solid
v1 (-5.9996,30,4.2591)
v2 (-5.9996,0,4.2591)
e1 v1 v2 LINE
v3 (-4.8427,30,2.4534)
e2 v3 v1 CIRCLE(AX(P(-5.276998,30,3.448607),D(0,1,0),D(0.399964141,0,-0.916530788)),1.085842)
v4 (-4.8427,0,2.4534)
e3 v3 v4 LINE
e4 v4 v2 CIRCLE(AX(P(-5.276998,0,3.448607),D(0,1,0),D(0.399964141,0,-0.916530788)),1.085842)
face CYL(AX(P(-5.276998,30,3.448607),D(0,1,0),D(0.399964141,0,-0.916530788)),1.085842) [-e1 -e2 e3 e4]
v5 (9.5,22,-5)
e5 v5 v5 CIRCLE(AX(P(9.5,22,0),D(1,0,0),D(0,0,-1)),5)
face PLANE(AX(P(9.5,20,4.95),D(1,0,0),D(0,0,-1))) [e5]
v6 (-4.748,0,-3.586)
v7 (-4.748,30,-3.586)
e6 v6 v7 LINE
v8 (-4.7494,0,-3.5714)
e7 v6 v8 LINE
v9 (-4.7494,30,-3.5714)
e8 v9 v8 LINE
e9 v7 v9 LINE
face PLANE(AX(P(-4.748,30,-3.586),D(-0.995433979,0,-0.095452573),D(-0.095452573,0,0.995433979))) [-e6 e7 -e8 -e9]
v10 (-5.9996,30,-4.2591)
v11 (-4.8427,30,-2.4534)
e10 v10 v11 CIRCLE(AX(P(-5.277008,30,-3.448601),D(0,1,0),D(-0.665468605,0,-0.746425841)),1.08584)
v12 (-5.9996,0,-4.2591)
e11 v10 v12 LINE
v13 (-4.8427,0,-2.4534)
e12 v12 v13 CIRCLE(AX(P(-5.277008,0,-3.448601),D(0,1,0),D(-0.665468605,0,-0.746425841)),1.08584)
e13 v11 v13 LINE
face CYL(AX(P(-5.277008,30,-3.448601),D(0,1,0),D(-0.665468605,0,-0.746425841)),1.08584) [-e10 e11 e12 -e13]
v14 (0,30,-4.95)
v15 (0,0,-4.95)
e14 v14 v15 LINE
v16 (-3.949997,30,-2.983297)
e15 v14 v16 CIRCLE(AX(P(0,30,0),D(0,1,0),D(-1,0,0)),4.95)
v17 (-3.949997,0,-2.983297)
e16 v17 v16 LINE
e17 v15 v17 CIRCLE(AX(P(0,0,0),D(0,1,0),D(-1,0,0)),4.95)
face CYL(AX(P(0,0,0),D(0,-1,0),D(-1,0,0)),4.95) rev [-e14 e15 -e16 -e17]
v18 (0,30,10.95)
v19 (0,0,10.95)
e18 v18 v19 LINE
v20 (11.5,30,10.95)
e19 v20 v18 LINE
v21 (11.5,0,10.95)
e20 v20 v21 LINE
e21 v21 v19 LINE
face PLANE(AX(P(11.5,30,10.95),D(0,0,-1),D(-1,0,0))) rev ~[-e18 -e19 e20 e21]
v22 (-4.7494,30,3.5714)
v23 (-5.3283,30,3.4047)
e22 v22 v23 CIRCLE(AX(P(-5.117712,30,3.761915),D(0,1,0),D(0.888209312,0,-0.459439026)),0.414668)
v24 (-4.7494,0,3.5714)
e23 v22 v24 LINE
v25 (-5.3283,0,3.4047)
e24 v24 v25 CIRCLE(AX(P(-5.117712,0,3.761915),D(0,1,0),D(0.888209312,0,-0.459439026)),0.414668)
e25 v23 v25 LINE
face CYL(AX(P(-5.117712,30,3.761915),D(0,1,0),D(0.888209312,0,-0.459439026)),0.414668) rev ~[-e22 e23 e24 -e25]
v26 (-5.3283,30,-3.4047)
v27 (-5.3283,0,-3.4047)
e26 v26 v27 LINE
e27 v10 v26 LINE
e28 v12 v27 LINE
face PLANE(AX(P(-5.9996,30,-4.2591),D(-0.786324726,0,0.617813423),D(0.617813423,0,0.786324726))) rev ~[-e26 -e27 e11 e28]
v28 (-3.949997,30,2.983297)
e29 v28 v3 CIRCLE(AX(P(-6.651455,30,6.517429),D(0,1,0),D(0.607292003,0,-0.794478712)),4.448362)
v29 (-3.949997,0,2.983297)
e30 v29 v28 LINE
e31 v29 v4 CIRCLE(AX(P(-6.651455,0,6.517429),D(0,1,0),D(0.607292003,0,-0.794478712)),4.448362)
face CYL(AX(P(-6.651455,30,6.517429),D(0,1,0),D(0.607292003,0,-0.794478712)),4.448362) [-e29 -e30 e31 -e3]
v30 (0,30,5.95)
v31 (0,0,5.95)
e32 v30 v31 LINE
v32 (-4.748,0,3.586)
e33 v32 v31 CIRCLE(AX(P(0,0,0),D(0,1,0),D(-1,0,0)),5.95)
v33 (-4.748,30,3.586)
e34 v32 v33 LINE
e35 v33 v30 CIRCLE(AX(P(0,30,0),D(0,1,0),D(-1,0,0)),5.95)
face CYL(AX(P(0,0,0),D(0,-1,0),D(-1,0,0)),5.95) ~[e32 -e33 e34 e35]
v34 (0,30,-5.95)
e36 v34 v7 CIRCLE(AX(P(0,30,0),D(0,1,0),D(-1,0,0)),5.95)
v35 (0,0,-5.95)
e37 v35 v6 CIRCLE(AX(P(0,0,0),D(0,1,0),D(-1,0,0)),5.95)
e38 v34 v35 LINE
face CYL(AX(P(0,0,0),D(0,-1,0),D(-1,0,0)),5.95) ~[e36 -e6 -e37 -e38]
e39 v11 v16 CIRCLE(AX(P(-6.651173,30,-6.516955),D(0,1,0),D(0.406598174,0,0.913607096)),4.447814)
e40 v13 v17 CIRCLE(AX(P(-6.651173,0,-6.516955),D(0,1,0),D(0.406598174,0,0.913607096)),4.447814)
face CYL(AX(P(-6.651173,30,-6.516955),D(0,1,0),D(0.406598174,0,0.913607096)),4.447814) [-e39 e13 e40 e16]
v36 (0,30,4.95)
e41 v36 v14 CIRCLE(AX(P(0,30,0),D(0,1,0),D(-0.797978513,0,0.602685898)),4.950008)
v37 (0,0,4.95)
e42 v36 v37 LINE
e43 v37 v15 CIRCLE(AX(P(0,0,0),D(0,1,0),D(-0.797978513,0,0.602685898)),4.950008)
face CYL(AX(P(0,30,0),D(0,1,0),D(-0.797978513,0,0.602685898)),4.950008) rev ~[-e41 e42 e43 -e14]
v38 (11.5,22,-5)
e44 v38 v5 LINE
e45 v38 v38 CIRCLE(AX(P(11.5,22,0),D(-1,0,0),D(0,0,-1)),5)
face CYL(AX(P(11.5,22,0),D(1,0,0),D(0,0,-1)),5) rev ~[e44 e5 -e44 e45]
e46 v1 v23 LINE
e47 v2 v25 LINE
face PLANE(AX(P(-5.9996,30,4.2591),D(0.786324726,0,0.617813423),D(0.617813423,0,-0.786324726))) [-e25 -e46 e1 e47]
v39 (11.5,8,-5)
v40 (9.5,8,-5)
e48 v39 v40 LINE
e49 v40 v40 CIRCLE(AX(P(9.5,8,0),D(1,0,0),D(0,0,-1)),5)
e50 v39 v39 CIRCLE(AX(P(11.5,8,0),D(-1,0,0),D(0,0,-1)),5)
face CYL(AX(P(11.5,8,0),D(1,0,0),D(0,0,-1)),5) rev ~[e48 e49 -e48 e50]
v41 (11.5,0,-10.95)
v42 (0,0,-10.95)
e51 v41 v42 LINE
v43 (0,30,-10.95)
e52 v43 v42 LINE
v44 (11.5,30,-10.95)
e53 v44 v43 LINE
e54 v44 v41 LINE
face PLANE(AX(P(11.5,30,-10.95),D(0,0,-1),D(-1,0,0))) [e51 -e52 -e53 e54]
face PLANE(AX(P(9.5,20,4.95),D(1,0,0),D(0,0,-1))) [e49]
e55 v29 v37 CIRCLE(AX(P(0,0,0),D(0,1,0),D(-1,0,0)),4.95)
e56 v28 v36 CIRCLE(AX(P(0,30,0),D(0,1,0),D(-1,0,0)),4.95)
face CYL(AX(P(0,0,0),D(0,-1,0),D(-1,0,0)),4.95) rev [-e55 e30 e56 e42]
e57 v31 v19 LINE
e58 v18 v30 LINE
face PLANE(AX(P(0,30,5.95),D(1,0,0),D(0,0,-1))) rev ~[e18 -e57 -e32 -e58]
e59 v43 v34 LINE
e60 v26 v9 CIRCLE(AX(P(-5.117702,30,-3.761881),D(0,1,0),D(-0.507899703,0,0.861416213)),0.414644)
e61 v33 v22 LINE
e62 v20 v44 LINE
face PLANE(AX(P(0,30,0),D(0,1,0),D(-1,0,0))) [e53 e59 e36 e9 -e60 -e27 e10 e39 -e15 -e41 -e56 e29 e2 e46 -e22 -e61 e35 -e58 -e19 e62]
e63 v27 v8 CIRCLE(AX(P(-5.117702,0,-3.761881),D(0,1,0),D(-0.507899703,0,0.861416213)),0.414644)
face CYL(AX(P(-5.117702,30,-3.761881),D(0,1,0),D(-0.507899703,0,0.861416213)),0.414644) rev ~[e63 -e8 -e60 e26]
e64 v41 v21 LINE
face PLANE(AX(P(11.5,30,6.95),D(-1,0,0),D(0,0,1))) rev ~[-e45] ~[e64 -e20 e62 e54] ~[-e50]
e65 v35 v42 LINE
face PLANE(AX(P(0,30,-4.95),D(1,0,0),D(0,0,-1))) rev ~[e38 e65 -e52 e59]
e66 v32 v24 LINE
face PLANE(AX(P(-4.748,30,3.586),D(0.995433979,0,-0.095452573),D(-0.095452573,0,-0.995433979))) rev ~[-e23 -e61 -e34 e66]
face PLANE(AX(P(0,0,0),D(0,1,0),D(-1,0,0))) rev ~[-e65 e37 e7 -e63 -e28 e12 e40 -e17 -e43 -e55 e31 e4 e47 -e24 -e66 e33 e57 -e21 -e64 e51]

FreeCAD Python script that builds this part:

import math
import FreeCAD as App
import Part
import Sketcher

V = App.Vector
Q = App.Units.Quantity

doc = App.newDocument("Part")
params = doc.addObject("Spreadsheet::Sheet", "Params")
for row, (alias, value) in enumerate([
    ("sketch1_radius", "4.95 mm"),
    ("sketch1_radius2", "5.95 mm"),
    ("pad1_length", "30 mm"),
    ("sketch2_height", "6 mm"),
    ("sketch2_height2", "21.9 mm"),
    ("sketch2_width", "11.5 mm"),
    ("pad2_length", "30 mm"),
    ("sketch3_diameter", "10 mm"),
    ("pocket1_length", "2 mm"),
    ("sketch4_length", "1 mm"),
    ("pad3_length", "30 mm"),
], start=1):
    params.set(f"A{row}", alias)
    params.set(f"B{row}", "=" + value)
    params.setAlias(f"B{row}", alias)

body = doc.addObject("PartDesign::Body", "Body")

# Sketch on XZ plane
sketch1 = body.newObject("Sketcher::SketchObject", "Sketch")
sketch1.AttachmentSupport = (doc.getObject("XZ_Plane"), [""])
sketch1.MapMode = "FlatFace"
sketch1.addGeometry(Part.ArcOfCircle(Part.Circle(V(0, 0, 0), V(0, 0, 1), 4.95), math.radians(-142.937512), math.radians(142.937512)), False)
sketch1.addGeometry(Part.LineSegment(V(-3.949994, 2.983294, 0), V(-4.748, 3.586, 0)), False)
sketch1.addGeometry(Part.ArcOfCircle(Part.Circle(V(0, 0, 0), V(0, 0, 1), 5.95), math.radians(-142.937512), math.radians(142.937512)), False)
sketch1.addGeometry(Part.LineSegment(V(-4.748, -3.586, 0), V(-3.949994, -2.983294, 0)), False)
sketch1.addConstraint(Sketcher.Constraint("Coincident", 0, 2, 1, 1))
sketch1.addConstraint(Sketcher.Constraint("Coincident", 1, 2, 2, 2))
sketch1.addConstraint(Sketcher.Constraint("Coincident", 2, 1, 3, 1))
sketch1.addConstraint(Sketcher.Constraint("Coincident", 3, 2, 0, 1))
sketch1.addConstraint(Sketcher.Constraint("Coincident", 0, 3, -1, 1))
sketch1.addConstraint(Sketcher.Constraint("Coincident", 2, 3, -1, 1))
sketch1.addConstraint(Sketcher.Constraint("Vertical", 1, 2, 2, 1))
sketch1.addConstraint(Sketcher.Constraint("Vertical", 0, 2, 3, 2))
sketch1.addConstraint(Sketcher.Constraint("Radius", 0, Q("4.95 mm")))
sketch1.addConstraint(Sketcher.Constraint("Radius", 2, Q("5.95 mm")))
sketch1.addConstraint(Sketcher.Constraint("DistanceX", 0, 2, -1, 1, Q("3.95 mm")))
sketch1.addConstraint(Sketcher.Constraint("DistanceX", 1, 2, -1, 1, Q("4.748 mm")))
sketch1.setExpression("Constraints[8]", "Params.sketch1_radius")
sketch1.setExpression("Constraints[9]", "Params.sketch1_radius2")
pad1 = body.newObject("PartDesign::Pad", "Pad")
pad1.Profile = sketch1
pad1.setExpression("Length", "Params.pad1_length")
pad1.Reversed = True

# Sketch on XZ plane
sketch2 = body.newObject("Sketcher::SketchObject", "Sketch001")
sketch2.AttachmentSupport = (doc.getObject("XZ_Plane"), [""])
sketch2.MapMode = "FlatFace"
sketch2.AttachmentOffset = App.Placement(V(0, 0, -30), App.Rotation())
sketch2.addGeometry(Part.LineSegment(V(0, 4.95, 0), V(0, 10.95, 0)), False)
sketch2.addGeometry(Part.LineSegment(V(0, 10.95, 0), V(11.5, 10.95, 0)), False)
sketch2.addGeometry(Part.LineSegment(V(11.5, 10.95, 0), V(11.5, -10.95, 0)), False)
sketch2.addGeometry(Part.LineSegment(V(11.5, -10.95, 0), V(0, -10.95, 0)), False)
sketch2.addGeometry(Part.LineSegment(V(0, -10.95, 0), V(0, -4.95, 0)), False)
sketch2.addGeometry(Part.ArcOfCircle(Part.Circle(V(0, 0, 0), V(0, 0, 1), 4.950008), math.radians(-90), math.radians(90)), False)
sketch2.addConstraint(Sketcher.Constraint("Coincident", 0, 2, 1, 1))
sketch2.addConstraint(Sketcher.Constraint("Coincident", 1, 2, 2, 1))
sketch2.addConstraint(Sketcher.Constraint("Coincident", 2, 2, 3, 1))
sketch2.addConstraint(Sketcher.Constraint("Coincident", 3, 2, 4, 1))
sketch2.addConstraint(Sketcher.Constraint("Coincident", 4, 2, 5, 1))
sketch2.addConstraint(Sketcher.Constraint("Coincident", 5, 2, 0, 1))
sketch2.addConstraint(Sketcher.Constraint("Vertical", 0))
sketch2.addConstraint(Sketcher.Constraint("Horizontal", 1))
sketch2.addConstraint(Sketcher.Constraint("Vertical", 2))
sketch2.addConstraint(Sketcher.Constraint("Horizontal", 3))
sketch2.addConstraint(Sketcher.Constraint("Vertical", 4))
sketch2.addConstraint(Sketcher.Constraint("Coincident", 5, 3, -1, 1))
sketch2.addConstraint(Sketcher.Constraint("Symmetric", 0, 2, 3, 2, -1, 1))
sketch2.addConstraint(Sketcher.Constraint("PointOnObject", 0, 2, -2))
sketch2.addConstraint(Sketcher.Constraint("DistanceY", 0, 1, 0, 2, Q("6 mm")))
sketch2.addConstraint(Sketcher.Constraint("DistanceY", 2, 2, 2, 1, Q("21.9 mm")))
sketch2.addConstraint(Sketcher.Constraint("DistanceX", 1, 1, 1, 2, Q("11.5 mm")))
sketch2.setExpression("Constraints[14]", "Params.sketch2_height")
sketch2.setExpression("Constraints[15]", "Params.sketch2_height2")
sketch2.setExpression("Constraints[16]", "Params.sketch2_width")
pad2 = body.newObject("PartDesign::Pad", "Pad001")
pad2.Profile = sketch2
pad2.setExpression("Length", "Params.pad2_length")

# Sketch on YZ plane
sketch3 = body.newObject("Sketcher::SketchObject", "Sketch002")
sketch3.AttachmentSupport = (doc.getObject("YZ_Plane"), [""])
sketch3.MapMode = "FlatFace"
sketch3.AttachmentOffset = App.Placement(V(0, 0, 11.5), App.Rotation())
sketch3.addGeometry(Part.Circle(V(8, 0, 0), V(0, 0, 1), 5), False)
sketch3.addGeometry(Part.Circle(V(22, 0, 0), V(0, 0, 1), 5), False)
sketch3.addConstraint(Sketcher.Constraint("Equal", 0, 1))
sketch3.addConstraint(Sketcher.Constraint("PointOnObject", 0, 3, -1))
sketch3.addConstraint(Sketcher.Constraint("PointOnObject", 1, 3, -1))
sketch3.addConstraint(Sketcher.Constraint("Diameter", 0, Q("10 mm")))
sketch3.addConstraint(Sketcher.Constraint("DistanceX", -1, 1, 0, 3, Q("8 mm")))
sketch3.addConstraint(Sketcher.Constraint("DistanceX", -1, 1, 1, 3, Q("22 mm")))
sketch3.setExpression("Constraints[3]", "Params.sketch3_diameter")
pocket1 = body.newObject("PartDesign::Pocket", "Pocket")
pocket1.Profile = sketch3
pocket1.setExpression("Length", "Params.pocket1_length")

# Sketch on XZ plane
sketch4 = body.newObject("Sketcher::SketchObject", "Sketch003")
sketch4.AttachmentSupport = (doc.getObject("XZ_Plane"), [""])
sketch4.MapMode = "FlatFace"
sketch4.AttachmentOffset = App.Placement(V(0, 0, -30), App.Rotation())
sketch4.addGeometry(Part.LineSegment(V(-4.748, 3.586, 0), V(-3.95, 2.9833, 0)), False)
sketch4.addGeometry(Part.ArcOfCircle(Part.Circle(V(-6.6513, 6.5172, 0), V(0, 0, 1), 4.448086), math.radians(-66.008476), math.radians(-52.605839)), False)
sketch4.addGeometry(Part.ArcOfCircle(Part.Circle(V(-5.277, 3.4486, 0), V(0, 0, 1), 1.085836), math.radians(131.71855), math.radians(293.576201)), False)
sketch4.addGeometry(Part.LineSegment(V(-5.9996, 4.2591, 0), V(-5.3283, 3.4047, 0)), False)
sketch4.addGeometry(Part.ArcOfCircle(Part.Circle(V(-5.1177, 3.7619, 0), V(0, 0, 1), 0.414651), math.radians(-120.522992), math.radians(-27.349876)), False)
sketch4.addGeometry(Part.LineSegment(V(-4.7494, 3.5714, 0), V(-4.748, 3.586, 0)), False)
sketch4.addGeometry(Part.ArcOfCircle(Part.Circle(V(-5.277, -3.4486, 0), V(0, 0, 1), 1.085846), math.radians(66.423799), math.radians(228.28145)), False)
sketch4.addGeometry(Part.ArcOfCircle(Part.Circle(V(-6.6513, -6.5172, 0), V(0, 0, 1), 4.44809), math.radians(52.605839), math.radians(66.008476)), False)
sketch4.addGeometry(Part.LineSegment(V(-3.95, -2.9833, 0), V(-4.748, -3.586, 0)), False)
sketch4.addGeometry(Part.LineSegment(V(-4.748, -3.586, 0), V(-4.7494, -3.5714, 0)), False)
sketch4.addGeometry(Part.ArcOfCircle(Part.Circle(V(-5.1177, -3.7619, 0), V(0, 0, 1), 0.414662), math.radians(27.349876), math.radians(120.522992)), False)
sketch4.addGeometry(Part.LineSegment(V(-5.3283, -3.4047, 0), V(-5.9996, -4.2591, 0)), False)
sketch4.addConstraint(Sketcher.Constraint("Coincident", 0, 2, 1, 2))
sketch4.addConstraint(Sketcher.Constraint("Coincident", 1, 1, 2, 2))
sketch4.addConstraint(Sketcher.Constraint("Coincident", 2, 1, 3, 1))
sketch4.addConstraint(Sketcher.Constraint("Coincident", 3, 2, 4, 1))
sketch4.addConstraint(Sketcher.Constraint("Coincident", 4, 2, 5, 1))
sketch4.addConstraint(Sketcher.Constraint("Coincident", 5, 2, 0, 1))
sketch4.addConstraint(Sketcher.Constraint("Coincident", 6, 1, 7, 2))
sketch4.addConstraint(Sketcher.Constraint("Coincident", 7, 1, 8, 1))
sketch4.addConstraint(Sketcher.Constraint("Coincident", 8, 2, 9, 1))
sketch4.addConstraint(Sketcher.Constraint("Coincident", 9, 2, 10, 1))
sketch4.addConstraint(Sketcher.Constraint("Coincident", 10, 2, 11, 1))
sketch4.addConstraint(Sketcher.Constraint("Coincident", 11, 2, 6, 2))
sketch4.addConstraint(Sketcher.Constraint("Equal", 2, 6))
sketch4.addConstraint(Sketcher.Constraint("Equal", 1, 7))
sketch4.addConstraint(Sketcher.Constraint("Equal", 4, 10))
sketch4.addConstraint(Sketcher.Constraint("Symmetric", 2, 3, 6, 3, -1))
sketch4.addConstraint(Sketcher.Constraint("Symmetric", 1, 3, 7, 3, -1))
sketch4.addConstraint(Sketcher.Constraint("Symmetric", 4, 3, 10, 3, -1))
sketch4.addConstraint(Sketcher.Constraint("Symmetric", 5, 2, 8, 2, -1))
sketch4.addConstraint(Sketcher.Constraint("Vertical", 0, 2, 7, 1))
sketch4.addConstraint(Sketcher.Constraint("Vertical", 4, 2, 9, 2))
sketch4.addConstraint(Sketcher.Constraint("Vertical", 3, 2, 10, 2))
sketch4.addConstraint(Sketcher.Constraint("Vertical", 2, 1, 11, 2))
sketch4.addConstraint(Sketcher.Constraint("Radius", 2, Q("1.0858 mm")))
sketch4.addConstraint(Sketcher.Constraint("Distance", 0, Q("1 mm")))
sketch4.addConstraint(Sketcher.Constraint("Radius", 1, Q("4.448 mm")))
sketch4.addConstraint(Sketcher.Constraint("Radius", 4, Q("0.4147 mm")))
sketch4.addConstraint(Sketcher.Constraint("DistanceX", 0, 2, -1, 1, Q("3.95 mm")))
sketch4.addConstraint(Sketcher.Constraint("DistanceY", 1, 1, 0, 2, Q("0.53 mm")))
sketch4.addConstraint(Sketcher.Constraint("DistanceX", 2, 3, -1, 1, Q("5.277 mm")))
sketch4.addConstraint(Sketcher.Constraint("DistanceY", -1, 1, 4, 3, Q("3.762 mm")))
sketch4.addConstraint(Sketcher.Constraint("DistanceY", -1, 1, 2, 1, Q("4.259 mm")))
sketch4.addConstraint(Sketcher.Constraint("DistanceX", 5, 2, -1, 1, Q("4.748 mm")))
sketch4.addConstraint(Sketcher.Constraint("DistanceY", -1, 1, 5, 2, Q("3.586 mm")))
sketch4.addConstraint(Sketcher.Constraint("DistanceY", 7, 3, 4, 3, Q("10.279 mm")))
sketch4.addConstraint(Sketcher.Constraint("DistanceX", 4, 3, 1, 1, Q("0.275 mm")))
sketch4.addConstraint(Sketcher.Constraint("DistanceY", 3, 2, 2, 3, Q("0.044 mm")))
sketch4.addConstraint(Sketcher.Constraint("DistanceX", 3, 2, 4, 2, Q("0.579 mm")))
sketch4.setExpression("Constraints[24]", "Params.sketch4_length")
pad3 = body.newObject("PartDesign::Pad", "Pad002")
pad3.Profile = sketch4
pad3.setExpression("Length", "Params.pad3_length")

doc.recompute()
